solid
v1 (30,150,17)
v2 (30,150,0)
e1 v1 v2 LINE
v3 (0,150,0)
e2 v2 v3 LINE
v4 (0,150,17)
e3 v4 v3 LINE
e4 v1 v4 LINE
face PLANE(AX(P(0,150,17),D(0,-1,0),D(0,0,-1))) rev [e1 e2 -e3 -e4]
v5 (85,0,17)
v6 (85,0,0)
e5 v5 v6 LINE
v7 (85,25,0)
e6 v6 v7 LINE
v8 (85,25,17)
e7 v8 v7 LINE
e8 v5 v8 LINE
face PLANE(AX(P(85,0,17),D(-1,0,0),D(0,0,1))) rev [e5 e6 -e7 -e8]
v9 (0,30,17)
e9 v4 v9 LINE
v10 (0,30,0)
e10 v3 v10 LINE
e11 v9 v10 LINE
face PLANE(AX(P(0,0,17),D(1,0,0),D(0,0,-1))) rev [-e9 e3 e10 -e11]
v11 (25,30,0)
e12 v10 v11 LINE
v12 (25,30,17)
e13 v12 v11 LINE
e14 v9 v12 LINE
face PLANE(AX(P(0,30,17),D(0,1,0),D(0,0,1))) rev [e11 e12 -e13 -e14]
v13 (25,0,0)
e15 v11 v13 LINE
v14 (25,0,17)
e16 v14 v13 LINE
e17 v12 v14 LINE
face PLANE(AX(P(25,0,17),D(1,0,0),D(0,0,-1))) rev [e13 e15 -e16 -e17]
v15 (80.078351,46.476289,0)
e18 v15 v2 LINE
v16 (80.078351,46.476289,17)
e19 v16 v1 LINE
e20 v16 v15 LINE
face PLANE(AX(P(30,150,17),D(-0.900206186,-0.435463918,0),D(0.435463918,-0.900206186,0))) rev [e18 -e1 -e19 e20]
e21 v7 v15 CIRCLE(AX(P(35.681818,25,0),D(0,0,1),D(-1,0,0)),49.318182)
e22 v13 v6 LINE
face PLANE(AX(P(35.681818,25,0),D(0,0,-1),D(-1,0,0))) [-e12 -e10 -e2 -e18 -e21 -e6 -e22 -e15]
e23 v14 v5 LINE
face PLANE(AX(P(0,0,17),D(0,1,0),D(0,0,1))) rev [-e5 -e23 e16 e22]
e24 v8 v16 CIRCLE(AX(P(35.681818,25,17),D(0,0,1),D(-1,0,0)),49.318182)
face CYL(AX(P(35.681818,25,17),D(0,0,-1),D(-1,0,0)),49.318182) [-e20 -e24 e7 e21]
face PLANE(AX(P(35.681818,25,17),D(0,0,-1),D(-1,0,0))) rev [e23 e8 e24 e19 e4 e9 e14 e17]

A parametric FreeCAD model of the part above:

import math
import FreeCAD as App
import Part
import Sketcher


def add_polygon(sketch, points):
    """Adds a closed chain of lines whose ends are joined by coincident constraints."""
    first, n = sketch.GeometryCount, len(points)
    for a, b in zip(points, points[1:] + points[:1]):
        sketch.addGeometry(Part.LineSegment(App.Vector(*a, 0), App.Vector(*b, 0)), False)
    for i in range(n):
        sketch.addConstraint(Sketcher.Constraint("Coincident", first + i, 2, first + (i + 1) % n, 1))

doc = App.newDocument("Part")
params = doc.addObject("Spreadsheet::Sheet", "Params")
for row, (alias, value) in enumerate([
    ("sketch1_width", "85 mm"),
    ("sketch1_width2", "30 mm"),
    ("sketch1_height", "25 mm"),
    ("sketch1_height2", "150 mm"),
    ("sketch1_length", "115 mm"),
    ("pad1_length", "17 mm"),
    ("sketch2_width", "25 mm"),
    ("sketch2_height", "30 mm"),
    ("pocket1_length", "17 mm"),
], start=1):
    params.set(f"A{row}", alias)
    params.set(f"B{row}", "=" + value)
    params.setAlias(f"B{row}", alias)

body = doc.addObject("PartDesign::Body", "Body")

# Sketch on XY plane
sketch1 = body.newObject("Sketcher::SketchObject", "Sketch")
sketch1.AttachmentSupport = (doc.getObject("XY_Plane"), [""])
sketch1.MapMode = "FlatFace"
sketch1.addGeometry([
    Part.LineSegment(App.Vector(0, 0, 0), App.Vector(85, 0, 0)),  # 0
    Part.LineSegment(App.Vector(85, 0, 0), App.Vector(85, 25, 0)),  # 1
    Part.ArcOfCircle(Part.Circle(App.Vector(36, 25, 0), App.Vector(0, 0, 1), 49), math.radians(0), math.radians(26)),  # 2
    Part.LineSegment(App.Vector(80, 46, 0), App.Vector(30, 150, 0)),  # 3
    Part.LineSegment(App.Vector(30, 150, 0), App.Vector(0, 150, 0)),  # 4
    Part.LineSegment(App.Vector(0, 150, 0), App.Vector(0, 0, 0)),  # 5
], False)
sketch1.addConstraint([
    Sketcher.Constraint("Coincident", 0, 2, 1, 1),
    Sketcher.Constraint("Tangent", 1, 2, 2, 1),
    Sketcher.Constraint("Tangent", 2, 2, 3, 1),
    Sketcher.Constraint("Coincident", 3, 2, 4, 1),
    Sketcher.Constraint("Coincident", 4, 2, 5, 1),
    Sketcher.Constraint("Coincident", 5, 2, 0, 1),
    Sketcher.Constraint("Horizontal", 0),
    Sketcher.Constraint("Vertical", 1),
    Sketcher.Constraint("Horizontal", 4),
    Sketcher.Constraint("Vertical", 5),
    Sketcher.Constraint("Coincident", 5, 2, -1, 1),
    Sketcher.Constraint("DistanceX", 0, 1, 0, 2, 85.0),
    Sketcher.Constraint("DistanceX", 4, 2, 4, 1, 30.0),
    Sketcher.Constraint("DistanceY", 1, 1, 1, 2, 25.0),
    Sketcher.Constraint("DistanceY", 5, 2, 5, 1, 150.0),
    Sketcher.Constraint("Distance", 3, 115.0),
])
sketch1.setExpression("Constraints[11]", "Params.sketch1_width")
sketch1.setExpression("Constraints[12]", "Params.sketch1_width2")
sketch1.setExpression("Constraints[13]", "Params.sketch1_height")
sketch1.setExpression("Constraints[14]", "Params.sketch1_height2")
sketch1.setExpression("Constraints[15]", "Params.sketch1_length")
pad1 = body.newObject("PartDesign::Pad", "Pad")
pad1.Profile = sketch1
pad1.setExpression("Length", "Params.pad1_length")

# Sketch on XY plane
sketch2 = body.newObject("Sketcher::SketchObject", "Sketch001")
sketch2.AttachmentSupport = (doc.getObject("XY_Plane"), [""])
sketch2.MapMode = "FlatFace"
add_polygon(sketch2, [(25, 30), (25, 0), (0, 0), (0, 30)])  # lines 0-3
sketch2.addConstraint([
    Sketcher.Constraint("Vertical", 0),
    Sketcher.Constraint("Horizontal", 1),
    Sketcher.Constraint("Vertical", 2),
    Sketcher.Constraint("Horizontal", 3),
    Sketcher.Constraint("Coincident", 1, 2, -1, 1),
    Sketcher.Constraint("DistanceX", 1, 2, 1, 1, 25.0),
    Sketcher.Constraint("DistanceY", 0, 2, 0, 1, 30.0),
])
sketch2.setExpression("Constraints[9]", "Params.sketch2_width")
sketch2.setExpression("Constraints[10]", "Params.sketch2_height")
pocket1 = body.newObject("PartDesign::Pocket", "Pocket")
pocket1.Profile = sketch2
pocket1.setExpression("Length", "Params.pocket1_length")
pocket1.Reversed = True

doc.recompute()
